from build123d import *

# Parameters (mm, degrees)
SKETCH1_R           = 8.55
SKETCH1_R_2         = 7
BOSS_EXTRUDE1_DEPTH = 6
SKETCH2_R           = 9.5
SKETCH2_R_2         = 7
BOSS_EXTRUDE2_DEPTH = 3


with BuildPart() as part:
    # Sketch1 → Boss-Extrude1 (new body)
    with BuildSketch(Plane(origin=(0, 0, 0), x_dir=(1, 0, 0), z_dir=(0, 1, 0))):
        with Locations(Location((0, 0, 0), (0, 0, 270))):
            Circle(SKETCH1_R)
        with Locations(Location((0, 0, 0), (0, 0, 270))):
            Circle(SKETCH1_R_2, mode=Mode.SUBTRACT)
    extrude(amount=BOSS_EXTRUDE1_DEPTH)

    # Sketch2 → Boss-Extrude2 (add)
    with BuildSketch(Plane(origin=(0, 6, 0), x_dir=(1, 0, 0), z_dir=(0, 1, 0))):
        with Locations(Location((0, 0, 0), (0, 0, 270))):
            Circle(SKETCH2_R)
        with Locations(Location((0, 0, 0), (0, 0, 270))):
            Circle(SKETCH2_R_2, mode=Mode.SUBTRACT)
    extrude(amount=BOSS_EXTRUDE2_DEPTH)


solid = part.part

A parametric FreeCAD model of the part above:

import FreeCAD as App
import Part
import Sketcher

doc = App.newDocument("Part")
body = doc.addObject("PartDesign::Body", "Body")

# Sketch on XZ plane
sketch1 = doc.addObject("Sketcher::SketchObject", "Sketch")
body.addObject(sketch1)
sketch1.AttachmentSupport = (doc.XZ_Plane, [""])
sketch1.MapMode = "FlatFace"
sketch1.addGeometry(Part.Circle(App.Vector(0, 0, 0), App.Vector(0, 0, 1), 8.55), False)
sketch1.addGeometry(Part.Circle(App.Vector(0, 0, 0), App.Vector(0, 0, 1), 7), False)
sketch1.addConstraint(Sketcher.Constraint("Coincident", 0, 3, -1, 1))
sketch1.addConstraint(Sketcher.Constraint("Coincident", 1, 3, -1, 1))
sketch1.addConstraint(Sketcher.Constraint("Diameter", 1, 14.0))
sketch1.addConstraint(Sketcher.Constraint("Diameter", 0, 17.1))
pad1 = doc.addObject("PartDesign::Pad", "Pad")
body.addObject(pad1)
pad1.Profile = sketch1
pad1.Length = 6
pad1.Reversed = True

# Sketch on XZ plane
sketch2 = doc.addObject("Sketcher::SketchObject", "Sketch001")
body.addObject(sketch2)
sketch2.AttachmentSupport = (doc.XZ_Plane, [""])
sketch2.MapMode = "FlatFace"
sketch2.AttachmentOffset = App.Placement(App.Vector(0, 0, -6), App.Rotation())
sketch2.addGeometry(Part.Circle(App.Vector(0, 0, 0), App.Vector(0, 0, 1), 9.5), False)
sketch2.addGeometry(Part.Circle(App.Vector(0, 0, 0), App.Vector(0, 0, 1), 7), False)
sketch2.addConstraint(Sketcher.Constraint("Coincident", 0, 3, -1, 1))
sketch2.addConstraint(Sketcher.Constraint("Coincident", 1, 3, -1, 1))
sketch2.addConstraint(Sketcher.Constraint("Diameter", 0, 19.0))
sketch2.addConstraint(Sketcher.Constraint("Diameter", 1, 14.0))
pad2 = doc.addObject("PartDesign::Pad", "Pad001")
body.addObject(pad2)
pad2.Profile = sketch2
pad2.Length = 3
pad2.Reversed = True

doc.recompute()
